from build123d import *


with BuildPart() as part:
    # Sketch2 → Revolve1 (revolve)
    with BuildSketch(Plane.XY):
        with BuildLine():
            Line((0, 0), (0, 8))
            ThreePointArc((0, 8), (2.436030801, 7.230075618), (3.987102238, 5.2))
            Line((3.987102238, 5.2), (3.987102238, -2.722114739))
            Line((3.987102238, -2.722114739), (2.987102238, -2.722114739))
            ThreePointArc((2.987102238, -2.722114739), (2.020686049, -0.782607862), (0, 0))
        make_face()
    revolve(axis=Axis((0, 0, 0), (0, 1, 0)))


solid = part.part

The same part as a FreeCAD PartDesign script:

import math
import FreeCAD as App
import Part
import Sketcher
Q = App.Units.Quantity

doc = App.newDocument("Part")
body = doc.addObject("PartDesign::Body", "Body")

sketch1 = body.newObject("Sketcher::SketchObject", "Sketch")
sketch1.AttachmentSupport = (doc.getObject("XY_Plane"), [""])
sketch1.MapMode = "FlatFace"
sketch1.addGeometry(Part.LineSegment(App.Vector(0, 8, 0), App.Vector(0, 0, 0)), False)
sketch1.addGeometry(Part.ArcOfCircle(Part.Circle(App.Vector(0, -3, 0), App.Vector(0, 0, 1), 3), math.radians(5.314836), math.radians(90)), False)
sketch1.addGeometry(Part.LineSegment(App.Vector(2.987102, -2.722115, 0), App.Vector(3.987102, -2.722115, 0)), False)
sketch1.addGeometry(Part.LineSegment(App.Vector(3.987102, -2.722115, 0), App.Vector(3.987102, 5.2, 0)), False)
sketch1.addGeometry(Part.ArcOfCircle(Part.Circle(App.Vector(0, 3.761253, 0), App.Vector(0, 0, 1), 4.238747), math.radians(19.841996), math.radians(90)), False)
sketch1.addConstraint(Sketcher.Constraint("Coincident", 0, 2, 1, 2))
sketch1.addConstraint(Sketcher.Constraint("Coincident", 1, 1, 2, 1))
sketch1.addConstraint(Sketcher.Constraint("Coincident", 2, 2, 3, 1))
sketch1.addConstraint(Sketcher.Constraint("Coincident", 3, 2, 4, 1))
sketch1.addConstraint(Sketcher.Constraint("Coincident", 4, 2, 0, 1))
sketch1.addConstraint(Sketcher.Constraint("Vertical", 0))
sketch1.addConstraint(Sketcher.Constraint("Horizontal", 2))
sketch1.addConstraint(Sketcher.Constraint("Vertical", 3))
sketch1.addConstraint(Sketcher.Constraint("Coincident", 0, 2, -1, 1))
sketch1.addConstraint(Sketcher.Constraint("PointOnObject", 1, 3, -2))
sketch1.addConstraint(Sketcher.Constraint("PointOnObject", 4, 3, -2))
sketch1.addConstraint(Sketcher.Constraint("Radius", 1, Q("3 mm")))
sketch1.addConstraint(Sketcher.Constraint("DistanceX", 2, 1, 2, 2, Q("1 mm")))
sketch1.addConstraint(Sketcher.Constraint("DistanceY", 0, 2, 0, 1, Q("8 mm")))
sketch1.addConstraint(Sketcher.Constraint("DistanceY", -1, 1, 3, 2, Q("5.2 mm")))
sketch1.addConstraint(Sketcher.Constraint("Radius", 4, Q("4.238747 mm")))
revolution = body.newObject("PartDesign::Revolution", "Revolution")
revolution.Profile = sketch1
revolution.ReferenceAxis = (sketch1, ["V_Axis"])
revolution.Angle = 360

doc.recompute()
